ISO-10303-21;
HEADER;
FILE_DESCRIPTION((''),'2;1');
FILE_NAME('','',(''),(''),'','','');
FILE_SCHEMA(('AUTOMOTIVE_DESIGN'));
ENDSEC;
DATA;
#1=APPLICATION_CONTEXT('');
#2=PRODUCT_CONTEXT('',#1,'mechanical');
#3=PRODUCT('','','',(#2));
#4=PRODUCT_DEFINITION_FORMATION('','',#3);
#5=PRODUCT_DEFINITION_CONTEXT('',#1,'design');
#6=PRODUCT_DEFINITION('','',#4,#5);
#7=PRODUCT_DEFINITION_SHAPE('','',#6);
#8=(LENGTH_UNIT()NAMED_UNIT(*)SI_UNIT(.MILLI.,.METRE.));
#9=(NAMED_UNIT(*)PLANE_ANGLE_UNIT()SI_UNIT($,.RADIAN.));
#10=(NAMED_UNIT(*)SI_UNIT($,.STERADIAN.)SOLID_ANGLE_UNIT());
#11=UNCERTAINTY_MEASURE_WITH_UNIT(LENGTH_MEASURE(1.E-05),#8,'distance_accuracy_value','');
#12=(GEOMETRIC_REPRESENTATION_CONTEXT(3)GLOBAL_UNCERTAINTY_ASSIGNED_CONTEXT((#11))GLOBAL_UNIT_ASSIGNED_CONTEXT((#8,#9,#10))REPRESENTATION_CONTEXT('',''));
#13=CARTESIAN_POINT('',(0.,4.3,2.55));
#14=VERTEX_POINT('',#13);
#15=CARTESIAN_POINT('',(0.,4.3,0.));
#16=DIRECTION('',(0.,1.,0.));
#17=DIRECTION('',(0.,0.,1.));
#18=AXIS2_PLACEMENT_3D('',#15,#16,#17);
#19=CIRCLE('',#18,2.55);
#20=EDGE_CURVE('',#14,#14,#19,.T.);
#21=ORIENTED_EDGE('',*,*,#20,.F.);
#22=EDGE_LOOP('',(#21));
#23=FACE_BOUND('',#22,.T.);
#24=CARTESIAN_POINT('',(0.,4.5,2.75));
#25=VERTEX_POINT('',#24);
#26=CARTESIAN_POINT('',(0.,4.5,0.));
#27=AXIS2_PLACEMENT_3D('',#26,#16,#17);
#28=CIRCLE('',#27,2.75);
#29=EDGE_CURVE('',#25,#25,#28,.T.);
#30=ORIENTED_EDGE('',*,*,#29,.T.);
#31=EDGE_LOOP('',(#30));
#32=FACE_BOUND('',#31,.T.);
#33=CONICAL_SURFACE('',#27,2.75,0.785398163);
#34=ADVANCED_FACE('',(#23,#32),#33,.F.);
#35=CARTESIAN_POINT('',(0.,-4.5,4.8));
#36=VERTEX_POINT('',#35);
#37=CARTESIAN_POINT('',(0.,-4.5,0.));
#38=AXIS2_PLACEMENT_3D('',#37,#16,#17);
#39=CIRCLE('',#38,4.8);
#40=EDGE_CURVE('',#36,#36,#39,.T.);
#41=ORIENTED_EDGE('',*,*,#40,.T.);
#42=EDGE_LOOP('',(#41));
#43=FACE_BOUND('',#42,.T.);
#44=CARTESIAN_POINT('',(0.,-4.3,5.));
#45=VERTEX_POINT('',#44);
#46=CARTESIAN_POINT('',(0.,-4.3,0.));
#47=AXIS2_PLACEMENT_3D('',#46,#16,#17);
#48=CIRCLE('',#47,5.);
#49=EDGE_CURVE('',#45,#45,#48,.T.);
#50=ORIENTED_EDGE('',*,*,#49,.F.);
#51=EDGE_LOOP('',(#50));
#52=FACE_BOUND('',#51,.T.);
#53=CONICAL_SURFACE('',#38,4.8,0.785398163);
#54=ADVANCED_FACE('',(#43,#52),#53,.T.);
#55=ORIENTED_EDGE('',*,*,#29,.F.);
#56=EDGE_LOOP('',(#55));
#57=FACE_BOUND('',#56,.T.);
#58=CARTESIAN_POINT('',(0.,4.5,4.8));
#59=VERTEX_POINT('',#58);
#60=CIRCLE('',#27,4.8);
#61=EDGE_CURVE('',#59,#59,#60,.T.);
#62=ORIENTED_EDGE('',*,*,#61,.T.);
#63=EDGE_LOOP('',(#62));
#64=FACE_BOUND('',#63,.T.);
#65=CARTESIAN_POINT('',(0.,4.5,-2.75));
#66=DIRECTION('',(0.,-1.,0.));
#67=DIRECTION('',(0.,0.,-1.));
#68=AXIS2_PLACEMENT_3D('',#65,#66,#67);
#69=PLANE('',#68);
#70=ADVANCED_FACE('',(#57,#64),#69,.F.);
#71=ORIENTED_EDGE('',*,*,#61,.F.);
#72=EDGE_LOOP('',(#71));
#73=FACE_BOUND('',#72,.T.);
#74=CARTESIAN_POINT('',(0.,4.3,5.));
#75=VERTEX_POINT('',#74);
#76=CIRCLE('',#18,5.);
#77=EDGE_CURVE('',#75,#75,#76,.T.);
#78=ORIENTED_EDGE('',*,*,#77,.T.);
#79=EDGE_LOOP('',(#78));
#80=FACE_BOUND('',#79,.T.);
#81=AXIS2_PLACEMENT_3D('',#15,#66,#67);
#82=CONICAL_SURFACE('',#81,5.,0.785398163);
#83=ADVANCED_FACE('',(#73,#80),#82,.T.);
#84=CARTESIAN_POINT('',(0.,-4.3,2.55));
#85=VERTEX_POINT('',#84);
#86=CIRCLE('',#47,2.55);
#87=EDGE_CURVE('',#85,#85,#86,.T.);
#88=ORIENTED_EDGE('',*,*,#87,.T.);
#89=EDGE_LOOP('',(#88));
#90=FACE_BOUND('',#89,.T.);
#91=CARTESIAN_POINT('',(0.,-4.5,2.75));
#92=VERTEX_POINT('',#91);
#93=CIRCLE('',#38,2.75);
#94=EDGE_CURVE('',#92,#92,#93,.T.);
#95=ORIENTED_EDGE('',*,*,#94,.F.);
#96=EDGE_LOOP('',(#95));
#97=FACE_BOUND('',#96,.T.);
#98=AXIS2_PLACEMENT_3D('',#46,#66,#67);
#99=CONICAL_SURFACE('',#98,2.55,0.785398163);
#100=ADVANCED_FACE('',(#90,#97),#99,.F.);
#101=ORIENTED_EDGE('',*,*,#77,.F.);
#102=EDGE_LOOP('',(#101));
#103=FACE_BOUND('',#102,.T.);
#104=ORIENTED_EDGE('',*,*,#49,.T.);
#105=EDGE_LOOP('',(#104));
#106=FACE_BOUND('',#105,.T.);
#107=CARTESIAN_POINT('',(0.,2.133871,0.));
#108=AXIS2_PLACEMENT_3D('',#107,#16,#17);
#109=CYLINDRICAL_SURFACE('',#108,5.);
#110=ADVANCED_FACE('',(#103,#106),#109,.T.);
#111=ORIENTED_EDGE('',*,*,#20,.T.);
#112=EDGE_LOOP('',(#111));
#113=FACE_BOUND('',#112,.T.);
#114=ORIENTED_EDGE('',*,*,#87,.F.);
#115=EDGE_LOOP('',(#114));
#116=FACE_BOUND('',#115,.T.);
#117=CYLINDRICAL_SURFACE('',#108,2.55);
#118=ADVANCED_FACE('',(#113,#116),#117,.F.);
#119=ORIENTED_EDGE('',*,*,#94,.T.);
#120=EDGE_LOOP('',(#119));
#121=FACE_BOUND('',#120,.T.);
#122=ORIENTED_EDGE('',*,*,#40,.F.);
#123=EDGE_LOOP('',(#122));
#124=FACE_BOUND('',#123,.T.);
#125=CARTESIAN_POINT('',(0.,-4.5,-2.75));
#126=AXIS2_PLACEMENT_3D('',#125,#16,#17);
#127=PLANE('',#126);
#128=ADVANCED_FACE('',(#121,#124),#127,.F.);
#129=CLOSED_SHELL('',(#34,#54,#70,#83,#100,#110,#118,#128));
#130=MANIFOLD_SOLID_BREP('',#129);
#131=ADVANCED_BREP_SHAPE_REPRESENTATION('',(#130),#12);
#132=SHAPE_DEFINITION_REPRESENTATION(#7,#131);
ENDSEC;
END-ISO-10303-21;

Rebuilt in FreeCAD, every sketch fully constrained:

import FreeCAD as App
import Part
import Sketcher
from FreeCAD import Vector
Q = App.Units.Quantity

doc = App.newDocument("Part")
body = doc.addObject("PartDesign::Body", "Body")

sketch1 = body.newObject("Sketcher::SketchObject", "Sketch")
sketch1.AttachmentSupport = (doc.getObject("YZ_Plane"), [""])
sketch1.MapMode = "FlatFace"
sketch1.addGeometry([
    Part.LineSegment(Vector(4.5, -2.75, 0), Vector(4.3, -2.55, 0)),
    Part.LineSegment(Vector(4.3, -2.55, 0), Vector(-4.3, -2.55, 0)),
    Part.LineSegment(Vector(-4.3, -2.55, 0), Vector(-4.5, -2.75, 0)),
    Part.LineSegment(Vector(-4.5, -2.75, 0), Vector(-4.5, -4.8, 0)),
    Part.LineSegment(Vector(-4.5, -4.8, 0), Vector(-4.3, -5, 0)),
    Part.LineSegment(Vector(-4.3, -5, 0), Vector(4.3, -5, 0)),
    Part.LineSegment(Vector(4.3, -5, 0), Vector(4.5, -4.8, 0)),
    Part.LineSegment(Vector(4.5, -4.8, 0), Vector(4.5, -2.75, 0)),
], False)
sketch1.addConstraint([
    Sketcher.Constraint("Coincident", 0, 2, 1, 1),
    Sketcher.Constraint("Coincident", 1, 2, 2, 1),
    Sketcher.Constraint("Coincident", 2, 2, 3, 1),
    Sketcher.Constraint("Coincident", 3, 2, 4, 1),
    Sketcher.Constraint("Coincident", 4, 2, 5, 1),
    Sketcher.Constraint("Coincident", 5, 2, 6, 1),
    Sketcher.Constraint("Coincident", 6, 2, 7, 1),
    Sketcher.Constraint("Coincident", 7, 2, 0, 1),
    Sketcher.Constraint("Horizontal", 1),
    Sketcher.Constraint("Vertical", 3),
    Sketcher.Constraint("Horizontal", 5),
    Sketcher.Constraint("Vertical", 7),
    Sketcher.Constraint("Symmetric", 3, 2, 6, 2, -2),
    Sketcher.Constraint("Perpendicular", 0, 2),
    Sketcher.Constraint("Perpendicular", 2, 4),
    Sketcher.Constraint("Perpendicular", 4, 6),
    Sketcher.Constraint("Horizontal", 2, 2, 7, 2),
    Sketcher.Constraint("Vertical", 1, 2, 4, 2),
    Sketcher.Constraint("Vertical", 0, 2, 5, 2),
    Sketcher.Constraint("DistanceX", 1, 2, 1, 1, Q("8.6 mm")),
    Sketcher.Constraint("DistanceY", 4, 2, -1, 1, Q("5 mm")),
    Sketcher.Constraint("DistanceX", 3, 2, 6, 2, Q("9 mm")),
    Sketcher.Constraint("DistanceY", 3, 2, 3, 1, Q("2.05 mm")),
])
revolution = body.newObject("PartDesign::Revolution", "Revolution")
revolution.Profile = sketch1
revolution.ReferenceAxis = (sketch1, ["H_Axis"])
revolution.Angle = 360

doc.recompute()
